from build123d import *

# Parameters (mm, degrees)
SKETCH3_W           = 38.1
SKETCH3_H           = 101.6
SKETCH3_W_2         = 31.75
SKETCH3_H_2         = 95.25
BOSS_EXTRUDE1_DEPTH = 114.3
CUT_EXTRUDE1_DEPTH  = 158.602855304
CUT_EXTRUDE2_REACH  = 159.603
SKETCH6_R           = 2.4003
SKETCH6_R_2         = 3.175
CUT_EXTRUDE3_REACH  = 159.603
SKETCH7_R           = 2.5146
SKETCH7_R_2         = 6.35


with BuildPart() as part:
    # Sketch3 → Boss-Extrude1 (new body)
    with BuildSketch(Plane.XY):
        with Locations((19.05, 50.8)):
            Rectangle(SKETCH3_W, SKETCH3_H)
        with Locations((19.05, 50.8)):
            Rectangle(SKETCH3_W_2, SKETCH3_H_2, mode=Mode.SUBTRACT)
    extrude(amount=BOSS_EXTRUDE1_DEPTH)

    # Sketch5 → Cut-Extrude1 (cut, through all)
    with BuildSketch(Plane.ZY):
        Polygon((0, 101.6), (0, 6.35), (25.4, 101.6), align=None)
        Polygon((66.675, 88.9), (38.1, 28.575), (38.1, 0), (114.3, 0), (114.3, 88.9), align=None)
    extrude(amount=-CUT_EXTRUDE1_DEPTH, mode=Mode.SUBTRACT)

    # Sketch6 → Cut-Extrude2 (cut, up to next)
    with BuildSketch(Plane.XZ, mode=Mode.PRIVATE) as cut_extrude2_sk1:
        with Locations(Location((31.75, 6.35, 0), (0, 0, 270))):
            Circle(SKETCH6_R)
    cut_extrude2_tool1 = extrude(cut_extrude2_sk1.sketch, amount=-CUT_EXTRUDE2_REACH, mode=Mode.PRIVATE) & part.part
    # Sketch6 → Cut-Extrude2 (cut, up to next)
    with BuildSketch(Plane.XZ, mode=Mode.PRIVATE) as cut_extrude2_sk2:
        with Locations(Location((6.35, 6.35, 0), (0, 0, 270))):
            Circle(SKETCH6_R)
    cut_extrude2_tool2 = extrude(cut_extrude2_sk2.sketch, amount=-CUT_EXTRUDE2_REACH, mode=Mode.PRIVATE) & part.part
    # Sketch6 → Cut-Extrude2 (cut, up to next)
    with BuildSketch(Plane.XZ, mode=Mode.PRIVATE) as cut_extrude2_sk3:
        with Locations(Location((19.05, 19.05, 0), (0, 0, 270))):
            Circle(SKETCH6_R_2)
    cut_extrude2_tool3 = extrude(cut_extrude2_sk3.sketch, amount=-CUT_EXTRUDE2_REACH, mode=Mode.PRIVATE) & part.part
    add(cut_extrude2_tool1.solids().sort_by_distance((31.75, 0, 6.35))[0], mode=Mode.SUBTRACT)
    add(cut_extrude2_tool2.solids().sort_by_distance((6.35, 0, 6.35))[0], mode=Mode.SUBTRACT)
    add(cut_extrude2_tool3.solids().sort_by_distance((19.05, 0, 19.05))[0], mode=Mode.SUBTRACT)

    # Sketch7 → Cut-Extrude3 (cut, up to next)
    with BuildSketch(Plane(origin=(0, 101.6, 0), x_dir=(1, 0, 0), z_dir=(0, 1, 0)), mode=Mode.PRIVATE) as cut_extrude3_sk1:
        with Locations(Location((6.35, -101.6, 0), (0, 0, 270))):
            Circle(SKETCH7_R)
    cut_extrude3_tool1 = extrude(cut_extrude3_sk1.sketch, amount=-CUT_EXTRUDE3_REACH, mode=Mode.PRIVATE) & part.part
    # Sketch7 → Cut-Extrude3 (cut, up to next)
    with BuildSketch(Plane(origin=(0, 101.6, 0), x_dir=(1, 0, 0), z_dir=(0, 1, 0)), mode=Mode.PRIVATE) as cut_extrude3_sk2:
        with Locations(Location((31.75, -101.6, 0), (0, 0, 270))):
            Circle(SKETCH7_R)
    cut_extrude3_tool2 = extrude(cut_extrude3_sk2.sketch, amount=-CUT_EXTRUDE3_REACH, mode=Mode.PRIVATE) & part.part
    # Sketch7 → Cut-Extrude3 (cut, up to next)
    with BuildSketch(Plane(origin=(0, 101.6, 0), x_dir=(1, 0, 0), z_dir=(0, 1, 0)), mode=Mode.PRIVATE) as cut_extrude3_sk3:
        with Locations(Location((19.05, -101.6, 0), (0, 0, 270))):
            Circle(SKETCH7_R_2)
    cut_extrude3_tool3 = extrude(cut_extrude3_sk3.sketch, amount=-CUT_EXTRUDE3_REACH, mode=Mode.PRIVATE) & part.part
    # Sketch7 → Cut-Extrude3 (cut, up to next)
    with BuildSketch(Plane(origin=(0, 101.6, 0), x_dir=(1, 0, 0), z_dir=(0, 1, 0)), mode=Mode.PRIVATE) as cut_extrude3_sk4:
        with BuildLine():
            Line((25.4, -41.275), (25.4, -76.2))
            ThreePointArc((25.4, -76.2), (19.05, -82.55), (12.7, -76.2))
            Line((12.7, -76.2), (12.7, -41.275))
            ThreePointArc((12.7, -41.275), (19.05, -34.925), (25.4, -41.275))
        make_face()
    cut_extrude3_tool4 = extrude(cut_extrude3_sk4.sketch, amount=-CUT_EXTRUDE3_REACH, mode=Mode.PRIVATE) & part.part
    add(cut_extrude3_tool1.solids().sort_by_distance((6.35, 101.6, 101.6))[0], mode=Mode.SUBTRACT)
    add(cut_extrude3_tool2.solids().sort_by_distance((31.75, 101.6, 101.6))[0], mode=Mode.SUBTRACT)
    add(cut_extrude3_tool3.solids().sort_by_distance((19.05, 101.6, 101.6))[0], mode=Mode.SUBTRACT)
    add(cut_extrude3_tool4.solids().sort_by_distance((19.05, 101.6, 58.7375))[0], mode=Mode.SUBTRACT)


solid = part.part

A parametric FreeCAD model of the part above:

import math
import FreeCAD as App
import Part
import Sketcher

V = App.Vector
Q = App.Units.Quantity


def add_polygon(sketch, points):
    """Adds a closed chain of lines whose ends are joined by coincident constraints."""
    first, n = sketch.GeometryCount, len(points)
    for a, b in zip(points, points[1:] + points[:1]):
        sketch.addGeometry(Part.LineSegment(App.Vector(*a, 0), App.Vector(*b, 0)), False)
    for i in range(n):
        sketch.addConstraint(Sketcher.Constraint("Coincident", first + i, 2, first + (i + 1) % n, 1))

doc = App.newDocument("Part")
params = doc.addObject("Spreadsheet::Sheet", "Params")
for row, (alias, value) in enumerate([
    ("sketch1_height", "4 in"),
    ("sketch1_width", "1.5 in"),
    ("sketch1_width2", "1.25 in"),
    ("sketch1_height2", "3.75 in"),
    ("pad1_length", "4.5 in"),
    ("sketch2_height", "1 in"),
    ("sketch2_height2", "3 in"),
    ("sketch2_width", "3.5 in"),
    ("sketch2_width2", "3.75 in"),
    ("sketch2_width3", "1.125 in"),
    ("sketch3_diameter", "0.189 in"),
    ("sketch4_diameter", "0.189 in"),
    ("sketch5_diameter", "0.25 in"),
    ("sketch6_diameter", "0.198 in"),
    ("sketch7_diameter", "0.198 in"),
    ("sketch8_diameter", "0.5 in"),
    ("sketch9_radius", "0.25 in"),
    ("sketch9_height", "1.375 in"),
], start=1):
    params.set(f"A{row}", alias)
    params.set(f"B{row}", "=" + value)
    params.setAlias(f"B{row}", alias)

body = doc.addObject("PartDesign::Body", "Body")

# Sketch on XY plane
sketch1 = body.newObject("Sketcher::SketchObject", "Sketch")
sketch1.AttachmentSupport = (doc.getObject("XY_Plane"), [""])
sketch1.MapMode = "FlatFace"
add_polygon(sketch1, [(0, 101.6), (0, 0), (38.1, 0), (38.1, 101.6)])  # lines 0-3
add_polygon(sketch1, [(34.925, 3.175), (3.175, 3.175), (3.175, 98.425), (34.925, 98.425)])  # lines 4-7
sketch1.addConstraint([
    Sketcher.Constraint("Vertical", 0),
    Sketcher.Constraint("Horizontal", 1),
    Sketcher.Constraint("Vertical", 2),
    Sketcher.Constraint("Horizontal", 3),
    Sketcher.Constraint("Horizontal", 4),
    Sketcher.Constraint("Vertical", 5),
    Sketcher.Constraint("Horizontal", 6),
    Sketcher.Constraint("Vertical", 7),
    Sketcher.Constraint("Coincident", 0, 2, -1, 1),
    Sketcher.Constraint("DistanceY", 0, 2, 0, 1, Q("4 in")),
    Sketcher.Constraint("DistanceX", 1, 1, 1, 2, Q("1.5 in")),
    Sketcher.Constraint("DistanceX", 4, 2, 4, 1, Q("1.25 in")),
    Sketcher.Constraint("DistanceY", 5, 1, 5, 2, Q("3.75 in")),
    Sketcher.Constraint("DistanceX", -1, 1, 4, 2, Q("0.125 in")),
    Sketcher.Constraint("DistanceY", -1, 1, 4, 2, Q("0.125 in")),
])
sketch1.setExpression("Constraints[17]", "Params.sketch1_height")
sketch1.setExpression("Constraints[18]", "Params.sketch1_width")
sketch1.setExpression("Constraints[19]", "Params.sketch1_width2")
sketch1.setExpression("Constraints[20]", "Params.sketch1_height2")
pad1 = body.newObject("PartDesign::Pad", "Pad")
pad1.Profile = sketch1
pad1.setExpression("Length", "Params.pad1_length")

# Sketch on YZ plane
sketch2 = body.newObject("Sketcher::SketchObject", "Sketch001")
sketch2.AttachmentSupport = (doc.getObject("YZ_Plane"), [""])
sketch2.MapMode = "FlatFace"
add_polygon(sketch2, [(101.6, 0), (6.35, 0), (101.6, 25.4)])  # lines 0-2
add_polygon(sketch2, [(88.9, 66.675), (28.575, 38.1), (0, 38.1), (0, 114.3), (88.9, 114.3)])  # lines 3-7
sketch2.addConstraint([
    Sketcher.Constraint("Horizontal", 0),
    Sketcher.Constraint("Vertical", 2),
    Sketcher.Constraint("Horizontal", 4),
    Sketcher.Constraint("Vertical", 5),
    Sketcher.Constraint("Horizontal", 6),
    Sketcher.Constraint("Vertical", 7),
    Sketcher.Constraint("PointOnObject", 0, 2, -1),
    Sketcher.Constraint("PointOnObject", 4, 2, -2),
    Sketcher.Constraint("DistanceY", 2, 2, 2, 1, Q("1 in")),
    Sketcher.Constraint("DistanceY", 5, 1, 5, 2, Q("3 in")),
    Sketcher.Constraint("DistanceX", 6, 1, 6, 2, Q("3.5 in")),
    Sketcher.Constraint("DistanceX", -1, 1, 1, 2, Q("4 in")),
    Sketcher.Constraint("DistanceX", 0, 2, 0, 1, Q("3.75 in")),
    Sketcher.Constraint("DistanceY", -1, 1, 3, 2, Q("1.5 in")),
    Sketcher.Constraint("DistanceX", 4, 2, 4, 1, Q("1.125 in")),
    Sketcher.Constraint("DistanceY", 7, 2, 7, 1, Q("1.875 in")),
])
sketch2.setExpression("Constraints[16]", "Params.sketch2_height")
sketch2.setExpression("Constraints[17]", "Params.sketch2_height2")
sketch2.setExpression("Constraints[18]", "Params.sketch2_width")
sketch2.setExpression("Constraints[20]", "Params.sketch2_width2")
sketch2.setExpression("Constraints[22]", "Params.sketch2_width3")
pocket1 = body.newObject("PartDesign::Pocket", "Pocket")
pocket1.Profile = sketch2
pocket1.Type = "ThroughAll"
pocket1.Reversed = True

# Sketch on XZ plane
sketch3 = body.newObject("Sketcher::SketchObject", "Sketch002")
sketch3.AttachmentSupport = (doc.getObject("XZ_Plane"), [""])
sketch3.MapMode = "FlatFace"
sketch3.addGeometry(Part.Circle(V(31.75, 6.35, 0), V(0, 0, 1), 2.4003), False)
sketch3.addConstraint([
    Sketcher.Constraint("Diameter", 0, Q("0.189 in")),
    Sketcher.Constraint("DistanceX", -1, 1, 0, 3, Q("1.25 in")),
    Sketcher.Constraint("DistanceY", -1, 1, 0, 3, Q("0.25 in")),
])
sketch3.setExpression("Constraints[0]", "Params.sketch3_diameter")
pocket2 = body.newObject("PartDesign::Pocket", "Pocket001")
pocket2.Profile = sketch3
pocket2.Type = "UpToFirst"

# Sketch on XZ plane
sketch4 = body.newObject("Sketcher::SketchObject", "Sketch003")
sketch4.AttachmentSupport = (doc.getObject("XZ_Plane"), [""])
sketch4.MapMode = "FlatFace"
sketch4.addGeometry(Part.Circle(V(6.35, 6.35, 0), V(0, 0, 1), 2.4003), False)
sketch4.addConstraint([
    Sketcher.Constraint("Diameter", 0, Q("0.189 in")),
    Sketcher.Constraint("DistanceX", -1, 1, 0, 3, Q("0.25 in")),
    Sketcher.Constraint("DistanceY", -1, 1, 0, 3, Q("0.25 in")),
])
sketch4.setExpression("Constraints[0]", "Params.sketch4_diameter")
pocket3 = body.newObject("PartDesign::Pocket", "Pocket002")
pocket3.Profile = sketch4
pocket3.Type = "UpToFirst"

# Sketch on XZ plane
sketch5 = body.newObject("Sketcher::SketchObject", "Sketch004")
sketch5.AttachmentSupport = (doc.getObject("XZ_Plane"), [""])
sketch5.MapMode = "FlatFace"
sketch5.addGeometry(Part.Circle(V(19.05, 19.05, 0), V(0, 0, 1), 3.175), False)
sketch5.addConstraint([
    Sketcher.Constraint("Diameter", 0, Q("0.25 in")),
    Sketcher.Constraint("DistanceX", -1, 1, 0, 3, Q("0.75 in")),
    Sketcher.Constraint("DistanceY", -1, 1, 0, 3, Q("0.75 in")),
])
sketch5.setExpression("Constraints[0]", "Params.sketch5_diameter")
pocket4 = body.newObject("PartDesign::Pocket", "Pocket003")
pocket4.Profile = sketch5
pocket4.Type = "UpToFirst"

# Sketch on XZ plane
sketch6 = body.newObject("Sketcher::SketchObject", "Sketch005")
sketch6.AttachmentSupport = (doc.getObject("XZ_Plane"), [""])
sketch6.MapMode = "FlatFace"
sketch6.AttachmentOffset = App.Placement(V(0, 0, -4 * 25.4), App.Rotation())
sketch6.addGeometry(Part.Circle(V(6.35, 101.6, 0), V(0, 0, 1), 2.5146), False)
sketch6.addConstraint([
    Sketcher.Constraint("Diameter", 0, Q("0.198 in")),
    Sketcher.Constraint("DistanceY", -1, 1, 0, 3, Q("4 in")),
    Sketcher.Constraint("DistanceX", -1, 1, 0, 3, Q("0.25 in")),
])
sketch6.setExpression("Constraints[0]", "Params.sketch6_diameter")
pocket5 = body.newObject("PartDesign::Pocket", "Pocket004")
pocket5.Profile = sketch6
pocket5.Type = "UpToFirst"
pocket5.Reversed = True

# Sketch on XZ plane
sketch7 = body.newObject("Sketcher::SketchObject", "Sketch006")
sketch7.AttachmentSupport = (doc.getObject("XZ_Plane"), [""])
sketch7.MapMode = "FlatFace"
sketch7.AttachmentOffset = App.Placement(V(0, 0, -4 * 25.4), App.Rotation())
sketch7.addGeometry(Part.Circle(V(31.75, 101.6, 0), V(0, 0, 1), 2.5146), False)
sketch7.addConstraint([
    Sketcher.Constraint("Diameter", 0, Q("0.198 in")),
    Sketcher.Constraint("DistanceY", -1, 1, 0, 3, Q("4 in")),
    Sketcher.Constraint("DistanceX", -1, 1, 0, 3, Q("1.25 in")),
])
sketch7.setExpression("Constraints[0]", "Params.sketch7_diameter")
pocket6 = body.newObject("PartDesign::Pocket", "Pocket005")
pocket6.Profile = sketch7
pocket6.Type = "UpToFirst"
pocket6.Reversed = True

# Sketch on XZ plane
sketch8 = body.newObject("Sketcher::SketchObject", "Sketch007")
sketch8.AttachmentSupport = (doc.getObject("XZ_Plane"), [""])
sketch8.MapMode = "FlatFace"
sketch8.AttachmentOffset = App.Placement(V(0, 0, -4 * 25.4), App.Rotation())
sketch8.addGeometry(Part.Circle(V(19.05, 101.6, 0), V(0, 0, 1), 6.35), False)
sketch8.addConstraint([
    Sketcher.Constraint("Diameter", 0, Q("0.5 in")),
    Sketcher.Constraint("DistanceY", -1, 1, 0, 3, Q("4 in")),
    Sketcher.Constraint("DistanceX", -1, 1, 0, 3, Q("0.75 in")),
])
sketch8.setExpression("Constraints[0]", "Params.sketch8_diameter")
pocket7 = body.newObject("PartDesign::Pocket", "Pocket006")
pocket7.Profile = sketch8
pocket7.Type = "UpToFirst"
pocket7.Reversed = True

# Sketch on XZ plane
sketch9 = body.newObject("Sketcher::SketchObject", "Sketch008")
sketch9.AttachmentSupport = (doc.getObject("XZ_Plane"), [""])
sketch9.MapMode = "FlatFace"
sketch9.AttachmentOffset = App.Placement(V(0, 0, -4 * 25.4), App.Rotation())
sketch9.addGeometry([
    Part.LineSegment(V(25.4, 76.2, 0), V(25.4, 41.275, 0)),
    Part.ArcOfCircle(Part.Circle(V(19.05, 41.275, 0), V(0, 0, 1), 6.35), math.radians(180), math.radians(360)),
    Part.LineSegment(V(12.7, 41.275, 0), V(12.7, 76.2, 0)),
    Part.ArcOfCircle(Part.Circle(V(19.05, 76.2, 0), V(0, 0, 1), 6.35), math.radians(0), math.radians(180)),
], False)
sketch9.addConstraint([
    Sketcher.Constraint("Tangent", 0, 2, 1, 2),
    Sketcher.Constraint("Tangent", 1, 1, 2, 1),
    Sketcher.Constraint("Tangent", 2, 2, 3, 2),
    Sketcher.Constraint("Tangent", 3, 1, 0, 1),
    Sketcher.Constraint("Vertical", 0),
    Sketcher.Constraint("Vertical", 2),
    Sketcher.Constraint("Radius", 1, Q("0.25 in")),
    Sketcher.Constraint("DistanceY", -1, 1, 3, 3, Q("3 in")),
    Sketcher.Constraint("DistanceX", -1, 1, 0, 2, Q("1 in")),
    Sketcher.Constraint("DistanceY", 0, 2, 0, 1, Q("1.375 in")),
])
sketch9.setExpression("Constraints[6]", "Params.sketch9_radius")
sketch9.setExpression("Constraints[9]", "Params.sketch9_height")
pocket8 = body.newObject("PartDesign::Pocket", "Pocket007")
pocket8.Profile = sketch9
pocket8.Type = "UpToFirst"
pocket8.Reversed = True

doc.recompute()
